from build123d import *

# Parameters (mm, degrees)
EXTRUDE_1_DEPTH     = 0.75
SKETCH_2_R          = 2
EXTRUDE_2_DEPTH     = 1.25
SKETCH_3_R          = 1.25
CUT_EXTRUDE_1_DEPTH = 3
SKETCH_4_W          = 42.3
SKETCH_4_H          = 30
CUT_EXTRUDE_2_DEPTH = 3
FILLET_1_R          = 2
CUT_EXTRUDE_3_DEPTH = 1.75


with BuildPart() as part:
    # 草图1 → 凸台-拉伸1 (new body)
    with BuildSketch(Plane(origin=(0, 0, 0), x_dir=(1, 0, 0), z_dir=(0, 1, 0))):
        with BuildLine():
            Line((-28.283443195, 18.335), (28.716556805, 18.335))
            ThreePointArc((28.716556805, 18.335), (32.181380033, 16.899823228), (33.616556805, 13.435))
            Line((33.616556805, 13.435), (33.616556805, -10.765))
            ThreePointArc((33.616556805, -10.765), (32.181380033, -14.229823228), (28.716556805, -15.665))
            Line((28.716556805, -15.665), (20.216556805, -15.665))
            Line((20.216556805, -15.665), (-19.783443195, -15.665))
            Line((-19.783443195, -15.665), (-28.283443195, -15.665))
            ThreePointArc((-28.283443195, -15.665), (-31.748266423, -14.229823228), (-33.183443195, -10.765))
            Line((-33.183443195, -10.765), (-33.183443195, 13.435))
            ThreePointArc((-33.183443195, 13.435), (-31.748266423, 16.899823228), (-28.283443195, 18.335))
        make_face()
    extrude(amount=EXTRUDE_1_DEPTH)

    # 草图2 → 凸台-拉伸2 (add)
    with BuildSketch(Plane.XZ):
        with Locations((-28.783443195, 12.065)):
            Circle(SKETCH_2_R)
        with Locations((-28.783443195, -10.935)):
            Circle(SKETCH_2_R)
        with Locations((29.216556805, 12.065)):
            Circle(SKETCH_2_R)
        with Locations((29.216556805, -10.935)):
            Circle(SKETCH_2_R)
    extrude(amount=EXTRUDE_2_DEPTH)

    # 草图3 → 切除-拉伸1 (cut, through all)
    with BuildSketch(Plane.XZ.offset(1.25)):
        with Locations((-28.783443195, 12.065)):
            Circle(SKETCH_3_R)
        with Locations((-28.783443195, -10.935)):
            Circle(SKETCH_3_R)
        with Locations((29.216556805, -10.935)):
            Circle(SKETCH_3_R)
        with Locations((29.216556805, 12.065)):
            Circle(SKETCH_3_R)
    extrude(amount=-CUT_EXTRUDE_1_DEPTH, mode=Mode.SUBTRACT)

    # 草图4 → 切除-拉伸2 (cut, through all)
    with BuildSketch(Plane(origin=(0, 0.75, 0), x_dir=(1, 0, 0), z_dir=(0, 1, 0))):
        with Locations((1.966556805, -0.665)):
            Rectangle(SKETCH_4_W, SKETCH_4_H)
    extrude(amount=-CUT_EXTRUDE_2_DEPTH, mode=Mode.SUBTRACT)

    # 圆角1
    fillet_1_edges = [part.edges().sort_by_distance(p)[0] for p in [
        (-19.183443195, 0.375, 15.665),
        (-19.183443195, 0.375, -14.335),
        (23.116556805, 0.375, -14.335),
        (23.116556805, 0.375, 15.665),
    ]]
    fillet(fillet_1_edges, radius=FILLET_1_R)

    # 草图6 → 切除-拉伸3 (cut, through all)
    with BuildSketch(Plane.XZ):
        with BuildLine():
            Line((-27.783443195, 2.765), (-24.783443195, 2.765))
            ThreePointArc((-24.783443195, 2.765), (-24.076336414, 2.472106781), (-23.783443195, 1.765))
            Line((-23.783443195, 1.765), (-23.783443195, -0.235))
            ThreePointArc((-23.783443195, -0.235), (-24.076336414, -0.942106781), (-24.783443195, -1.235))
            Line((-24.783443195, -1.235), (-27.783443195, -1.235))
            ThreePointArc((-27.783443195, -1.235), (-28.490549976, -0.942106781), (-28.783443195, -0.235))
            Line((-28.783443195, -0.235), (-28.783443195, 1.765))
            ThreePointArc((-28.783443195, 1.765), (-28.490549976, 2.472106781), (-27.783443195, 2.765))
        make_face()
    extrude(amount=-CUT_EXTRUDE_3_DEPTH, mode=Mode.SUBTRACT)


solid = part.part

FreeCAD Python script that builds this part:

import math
import FreeCAD as App
import Part
import Sketcher


def edges_at(feature, points):
    """Names of the edges that pass closest to the given points."""
    edges = feature.Shape.Edges
    near = lambda p: min(range(len(edges)), key=lambda i: edges[i].distToShape(Part.Vertex(*p))[0])
    return sorted({f"Edge{near(p) + 1}" for p in points})

doc = App.newDocument("Part")
body = doc.addObject("PartDesign::Body", "Body")

# Sketch on XZ plane
sketch1 = doc.addObject("Sketcher::SketchObject", "Sketch")
body.addObject(sketch1)
sketch1.AttachmentSupport = (doc.XZ_Plane, [""])
sketch1.MapMode = "FlatFace"
sketch1.addGeometry(Part.LineSegment(App.Vector(28.716557, -18.335, 0), App.Vector(-28.283443, -18.335, 0)), False)
sketch1.addGeometry(Part.ArcOfCircle(Part.Circle(App.Vector(-28.283443, -13.435, 0), App.Vector(0, 0, 1), 4.9), math.radians(180), math.radians(270)), False)
sketch1.addGeometry(Part.LineSegment(App.Vector(-33.183443, -13.435, 0), App.Vector(-33.183443, 10.765, 0)), False)
sketch1.addGeometry(Part.ArcOfCircle(Part.Circle(App.Vector(-28.283443, 10.765, 0), App.Vector(0, 0, 1), 4.9), math.radians(90), math.radians(180)), False)
sketch1.addGeometry(Part.LineSegment(App.Vector(-28.283443, 15.665, 0), App.Vector(28.716557, 15.665, 0)), False)
sketch1.addGeometry(Part.ArcOfCircle(Part.Circle(App.Vector(28.716557, 10.765, 0), App.Vector(0, 0, 1), 4.9), math.radians(0), math.radians(90)), False)
sketch1.addGeometry(Part.LineSegment(App.Vector(33.616557, 10.765, 0), App.Vector(33.616557, -13.435, 0)), False)
sketch1.addGeometry(Part.ArcOfCircle(Part.Circle(App.Vector(28.716557, -13.435, 0), App.Vector(0, 0, 1), 4.9), math.radians(-90), math.radians(0)), False)
sketch1.addConstraint(Sketcher.Constraint("Tangent", 0, 2, 1, 2))
sketch1.addConstraint(Sketcher.Constraint("Tangent", 1, 1, 2, 1))
sketch1.addConstraint(Sketcher.Constraint("Tangent", 2, 2, 3, 2))
sketch1.addConstraint(Sketcher.Constraint("Tangent", 3, 1, 4, 1))
sketch1.addConstraint(Sketcher.Constraint("Tangent", 4, 2, 5, 2))
sketch1.addConstraint(Sketcher.Constraint("Tangent", 5, 1, 6, 1))
sketch1.addConstraint(Sketcher.Constraint("Tangent", 6, 2, 7, 2))
sketch1.addConstraint(Sketcher.Constraint("Tangent", 7, 1, 0, 1))
sketch1.addConstraint(Sketcher.Constraint("Horizontal", 0))
sketch1.addConstraint(Sketcher.Constraint("Vertical", 2))
sketch1.addConstraint(Sketcher.Constraint("Horizontal", 4))
sketch1.addConstraint(Sketcher.Constraint("Vertical", 6))
sketch1.addConstraint(Sketcher.Constraint("Equal", 1, 3))
sketch1.addConstraint(Sketcher.Constraint("Equal", 3, 5))
sketch1.addConstraint(Sketcher.Constraint("Equal", 5, 7))
sketch1.addConstraint(Sketcher.Constraint("Radius", 1, 4.9))
sketch1.addConstraint(Sketcher.Constraint("DistanceX", 0, 2, 0, 1, 57.0))
sketch1.addConstraint(Sketcher.Constraint("DistanceY", 2, 1, 2, 2, 24.2))
sketch1.addConstraint(Sketcher.Constraint("DistanceY", 1, 3, -1, 1, 13.435))
sketch1.addConstraint(Sketcher.Constraint("DistanceX", 1, 3, -1, 1, 28.283443))
pad1 = doc.addObject("PartDesign::Pad", "Pad")
body.addObject(pad1)
pad1.Profile = sketch1
pad1.Length = 0.75
pad1.Reversed = True

# Sketch on XZ plane
sketch2 = doc.addObject("Sketcher::SketchObject", "Sketch001")
body.addObject(sketch2)
sketch2.AttachmentSupport = (doc.XZ_Plane, [""])
sketch2.MapMode = "FlatFace"
sketch2.addGeometry(Part.Circle(App.Vector(-28.783443, 12.065, 0), App.Vector(0, 0, 1), 2), False)
sketch2.addGeometry(Part.Circle(App.Vector(-28.783443, -10.935, 0), App.Vector(0, 0, 1), 2), False)
sketch2.addGeometry(Part.Circle(App.Vector(29.216557, 12.065, 0), App.Vector(0, 0, 1), 2), False)
sketch2.addGeometry(Part.Circle(App.Vector(29.216557, -10.935, 0), App.Vector(0, 0, 1), 2), False)
sketch2.addConstraint(Sketcher.Constraint("Equal", 0, 1))
sketch2.addConstraint(Sketcher.Constraint("Equal", 1, 2))
sketch2.addConstraint(Sketcher.Constraint("Equal", 2, 3))
sketch2.addConstraint(Sketcher.Constraint("Horizontal", 0, 3, 2, 3))
sketch2.addConstraint(Sketcher.Constraint("Horizontal", 1, 3, 3, 3))
sketch2.addConstraint(Sketcher.Constraint("Vertical", 0, 3, 1, 3))
sketch2.addConstraint(Sketcher.Constraint("Vertical", 2, 3, 3, 3))
sketch2.addConstraint(Sketcher.Constraint("Diameter", 0, 4.0))
sketch2.addConstraint(Sketcher.Constraint("DistanceY", 1, 3, 0, 3, 23.0))
sketch2.addConstraint(Sketcher.Constraint("DistanceX", 0, 3, 2, 3, 58.0))
sketch2.addConstraint(Sketcher.Constraint("DistanceY", -1, 1, 0, 3, 12.065))
sketch2.addConstraint(Sketcher.Constraint("DistanceX", 0, 3, -1, 1, 28.783443))
pad2 = doc.addObject("PartDesign::Pad", "Pad001")
body.addObject(pad2)
pad2.Profile = sketch2
pad2.Length = 1.25

# Sketch on XZ plane
sketch3 = doc.addObject("Sketcher::SketchObject", "Sketch002")
body.addObject(sketch3)
sketch3.AttachmentSupport = (doc.XZ_Plane, [""])
sketch3.MapMode = "FlatFace"
sketch3.AttachmentOffset = App.Placement(App.Vector(0, 0, 1.25), App.Rotation())
sketch3.addGeometry(Part.Circle(App.Vector(-28.783443, 12.065, 0), App.Vector(0, 0, 1), 1.25), False)
sketch3.addGeometry(Part.Circle(App.Vector(-28.783443, -10.935, 0), App.Vector(0, 0, 1), 1.25), False)
sketch3.addGeometry(Part.Circle(App.Vector(29.216557, -10.935, 0), App.Vector(0, 0, 1), 1.25), False)
sketch3.addGeometry(Part.Circle(App.Vector(29.216557, 12.065, 0), App.Vector(0, 0, 1), 1.25), False)
sketch3.addConstraint(Sketcher.Constraint("Equal", 0, 1))
sketch3.addConstraint(Sketcher.Constraint("Equal", 1, 2))
sketch3.addConstraint(Sketcher.Constraint("Equal", 2, 3))
sketch3.addConstraint(Sketcher.Constraint("Horizontal", 1, 3, 2, 3))
sketch3.addConstraint(Sketcher.Constraint("Horizontal", 0, 3, 3, 3))
sketch3.addConstraint(Sketcher.Constraint("Vertical", 0, 3, 1, 3))
sketch3.addConstraint(Sketcher.Constraint("Vertical", 2, 3, 3, 3))
sketch3.addConstraint(Sketcher.Constraint("Diameter", 0, 2.5))
sketch3.addConstraint(Sketcher.Constraint("DistanceY", 1, 3, 0, 3, 23.0))
sketch3.addConstraint(Sketcher.Constraint("DistanceX", 1, 3, 2, 3, 58.0))
sketch3.addConstraint(Sketcher.Constraint("DistanceY", -1, 1, 0, 3, 12.065))
sketch3.addConstraint(Sketcher.Constraint("DistanceX", 0, 3, -1, 1, 28.783443))
pocket1 = doc.addObject("PartDesign::Pocket", "Pocket")
body.addObject(pocket1)
pocket1.Profile = sketch3
pocket1.Type = "ThroughAll"

# Sketch on XZ plane
sketch4 = doc.addObject("Sketcher::SketchObject", "Sketch003")
body.addObject(sketch4)
sketch4.AttachmentSupport = (doc.XZ_Plane, [""])
sketch4.MapMode = "FlatFace"
sketch4.AttachmentOffset = App.Placement(App.Vector(0, 0, -0.75), App.Rotation())
sketch4.addGeometry(Part.LineSegment(App.Vector(-19.183443, -14.335, 0), App.Vector(-19.183443, 15.665, 0)), False)
sketch4.addGeometry(Part.LineSegment(App.Vector(-19.183443, 15.665, 0), App.Vector(23.116557, 15.665, 0)), False)
sketch4.addGeometry(Part.LineSegment(App.Vector(23.116557, 15.665, 0), App.Vector(23.116557, -14.335, 0)), False)
sketch4.addGeometry(Part.LineSegment(App.Vector(23.116557, -14.335, 0), App.Vector(-19.183443, -14.335, 0)), False)
sketch4.addConstraint(Sketcher.Constraint("Coincident", 0, 2, 1, 1))
sketch4.addConstraint(Sketcher.Constraint("Coincident", 1, 2, 2, 1))
sketch4.addConstraint(Sketcher.Constraint("Coincident", 2, 2, 3, 1))
sketch4.addConstraint(Sketcher.Constraint("Coincident", 3, 2, 0, 1))
sketch4.addConstraint(Sketcher.Constraint("Vertical", 0))
sketch4.addConstraint(Sketcher.Constraint("Horizontal", 1))
sketch4.addConstraint(Sketcher.Constraint("Vertical", 2))
sketch4.addConstraint(Sketcher.Constraint("Horizontal", 3))
sketch4.addConstraint(Sketcher.Constraint("DistanceY", 0, 1, 0, 2, 30.0))
sketch4.addConstraint(Sketcher.Constraint("DistanceX", 1, 1, 1, 2, 42.3))
sketch4.addConstraint(Sketcher.Constraint("DistanceY", -1, 1, 0, 2, 15.665))
sketch4.addConstraint(Sketcher.Constraint("DistanceX", 0, 2, -1, 1, 19.183443))
pocket2 = doc.addObject("PartDesign::Pocket", "Pocket001")
body.addObject(pocket2)
pocket2.Profile = sketch4
pocket2.Type = "ThroughAll"
pocket2.Reversed = True
doc.recompute()

fillet = doc.addObject("PartDesign::Fillet", "Fillet")
body.addObject(fillet)
fillet.Base = (pocket2, edges_at(pocket2, [
    (-19.183, 0.375, 15.665),
    (-19.183, 0.375, -14.335),
    (23.117, 0.375, -14.335),
    (23.117, 0.375, 15.665),
]))
fillet.Radius = 2

# Sketch on XZ plane
sketch5 = doc.addObject("Sketcher::SketchObject", "Sketch004")
body.addObject(sketch5)
sketch5.AttachmentSupport = (doc.XZ_Plane, [""])
sketch5.MapMode = "FlatFace"
sketch5.addGeometry(Part.LineSegment(App.Vector(-24.783443, 2.765, 0), App.Vector(-27.783443, 2.765, 0)), False)
sketch5.addGeometry(Part.ArcOfCircle(Part.Circle(App.Vector(-27.783443, 1.765, 0), App.Vector(0, 0, 1), 1), math.radians(90), math.radians(180)), False)
sketch5.addGeometry(Part.LineSegment(App.Vector(-28.783443, 1.765, 0), App.Vector(-28.783443, -0.235, 0)), False)
sketch5.addGeometry(Part.ArcOfCircle(Part.Circle(App.Vector(-27.783443, -0.235, 0), App.Vector(0, 0, 1), 1), math.radians(-180), math.radians(-90)), False)
sketch5.addGeometry(Part.LineSegment(App.Vector(-27.783443, -1.235, 0), App.Vector(-24.783443, -1.235, 0)), False)
sketch5.addGeometry(Part.ArcOfCircle(Part.Circle(App.Vector(-24.783443, -0.235, 0), App.Vector(0, 0, 1), 1), math.radians(-90), math.radians(0)), False)
sketch5.addGeometry(Part.LineSegment(App.Vector(-23.783443, -0.235, 0), App.Vector(-23.783443, 1.765, 0)), False)
sketch5.addGeometry(Part.ArcOfCircle(Part.Circle(App.Vector(-24.783443, 1.765, 0), App.Vector(0, 0, 1), 1), math.radians(0), math.radians(90)), False)
sketch5.addConstraint(Sketcher.Constraint("Tangent", 0, 2, 1, 1))
sketch5.addConstraint(Sketcher.Constraint("Tangent", 1, 2, 2, 1))
sketch5.addConstraint(Sketcher.Constraint("Tangent", 2, 2, 3, 1))
sketch5.addConstraint(Sketcher.Constraint("Tangent", 3, 2, 4, 1))
sketch5.addConstraint(Sketcher.Constraint("Tangent", 4, 2, 5, 1))
sketch5.addConstraint(Sketcher.Constraint("Tangent", 5, 2, 6, 1))
sketch5.addConstraint(Sketcher.Constraint("Tangent", 6, 2, 7, 1))
sketch5.addConstraint(Sketcher.Constraint("Tangent", 7, 2, 0, 1))
sketch5.addConstraint(Sketcher.Constraint("Horizontal", 0))
sketch5.addConstraint(Sketcher.Constraint("Vertical", 2))
sketch5.addConstraint(Sketcher.Constraint("Horizontal", 4))
sketch5.addConstraint(Sketcher.Constraint("Vertical", 6))
sketch5.addConstraint(Sketcher.Constraint("Equal", 1, 3))
sketch5.addConstraint(Sketcher.Constraint("Equal", 3, 5))
sketch5.addConstraint(Sketcher.Constraint("Equal", 5, 7))
sketch5.addConstraint(Sketcher.Constraint("Radius", 1, 1.0))
sketch5.addConstraint(Sketcher.Constraint("DistanceX", 0, 2, 0, 1, 3.0))
sketch5.addConstraint(Sketcher.Constraint("DistanceY", 2, 2, 2, 1, 2.0))
sketch5.addConstraint(Sketcher.Constraint("DistanceY", -1, 1, 1, 3, 1.765))
sketch5.addConstraint(Sketcher.Constraint("DistanceX", 1, 3, -1, 1, 27.783443))
pocket3 = doc.addObject("PartDesign::Pocket", "Pocket002")
body.addObject(pocket3)
pocket3.Profile = sketch5
pocket3.Type = "ThroughAll"

doc.recompute()
